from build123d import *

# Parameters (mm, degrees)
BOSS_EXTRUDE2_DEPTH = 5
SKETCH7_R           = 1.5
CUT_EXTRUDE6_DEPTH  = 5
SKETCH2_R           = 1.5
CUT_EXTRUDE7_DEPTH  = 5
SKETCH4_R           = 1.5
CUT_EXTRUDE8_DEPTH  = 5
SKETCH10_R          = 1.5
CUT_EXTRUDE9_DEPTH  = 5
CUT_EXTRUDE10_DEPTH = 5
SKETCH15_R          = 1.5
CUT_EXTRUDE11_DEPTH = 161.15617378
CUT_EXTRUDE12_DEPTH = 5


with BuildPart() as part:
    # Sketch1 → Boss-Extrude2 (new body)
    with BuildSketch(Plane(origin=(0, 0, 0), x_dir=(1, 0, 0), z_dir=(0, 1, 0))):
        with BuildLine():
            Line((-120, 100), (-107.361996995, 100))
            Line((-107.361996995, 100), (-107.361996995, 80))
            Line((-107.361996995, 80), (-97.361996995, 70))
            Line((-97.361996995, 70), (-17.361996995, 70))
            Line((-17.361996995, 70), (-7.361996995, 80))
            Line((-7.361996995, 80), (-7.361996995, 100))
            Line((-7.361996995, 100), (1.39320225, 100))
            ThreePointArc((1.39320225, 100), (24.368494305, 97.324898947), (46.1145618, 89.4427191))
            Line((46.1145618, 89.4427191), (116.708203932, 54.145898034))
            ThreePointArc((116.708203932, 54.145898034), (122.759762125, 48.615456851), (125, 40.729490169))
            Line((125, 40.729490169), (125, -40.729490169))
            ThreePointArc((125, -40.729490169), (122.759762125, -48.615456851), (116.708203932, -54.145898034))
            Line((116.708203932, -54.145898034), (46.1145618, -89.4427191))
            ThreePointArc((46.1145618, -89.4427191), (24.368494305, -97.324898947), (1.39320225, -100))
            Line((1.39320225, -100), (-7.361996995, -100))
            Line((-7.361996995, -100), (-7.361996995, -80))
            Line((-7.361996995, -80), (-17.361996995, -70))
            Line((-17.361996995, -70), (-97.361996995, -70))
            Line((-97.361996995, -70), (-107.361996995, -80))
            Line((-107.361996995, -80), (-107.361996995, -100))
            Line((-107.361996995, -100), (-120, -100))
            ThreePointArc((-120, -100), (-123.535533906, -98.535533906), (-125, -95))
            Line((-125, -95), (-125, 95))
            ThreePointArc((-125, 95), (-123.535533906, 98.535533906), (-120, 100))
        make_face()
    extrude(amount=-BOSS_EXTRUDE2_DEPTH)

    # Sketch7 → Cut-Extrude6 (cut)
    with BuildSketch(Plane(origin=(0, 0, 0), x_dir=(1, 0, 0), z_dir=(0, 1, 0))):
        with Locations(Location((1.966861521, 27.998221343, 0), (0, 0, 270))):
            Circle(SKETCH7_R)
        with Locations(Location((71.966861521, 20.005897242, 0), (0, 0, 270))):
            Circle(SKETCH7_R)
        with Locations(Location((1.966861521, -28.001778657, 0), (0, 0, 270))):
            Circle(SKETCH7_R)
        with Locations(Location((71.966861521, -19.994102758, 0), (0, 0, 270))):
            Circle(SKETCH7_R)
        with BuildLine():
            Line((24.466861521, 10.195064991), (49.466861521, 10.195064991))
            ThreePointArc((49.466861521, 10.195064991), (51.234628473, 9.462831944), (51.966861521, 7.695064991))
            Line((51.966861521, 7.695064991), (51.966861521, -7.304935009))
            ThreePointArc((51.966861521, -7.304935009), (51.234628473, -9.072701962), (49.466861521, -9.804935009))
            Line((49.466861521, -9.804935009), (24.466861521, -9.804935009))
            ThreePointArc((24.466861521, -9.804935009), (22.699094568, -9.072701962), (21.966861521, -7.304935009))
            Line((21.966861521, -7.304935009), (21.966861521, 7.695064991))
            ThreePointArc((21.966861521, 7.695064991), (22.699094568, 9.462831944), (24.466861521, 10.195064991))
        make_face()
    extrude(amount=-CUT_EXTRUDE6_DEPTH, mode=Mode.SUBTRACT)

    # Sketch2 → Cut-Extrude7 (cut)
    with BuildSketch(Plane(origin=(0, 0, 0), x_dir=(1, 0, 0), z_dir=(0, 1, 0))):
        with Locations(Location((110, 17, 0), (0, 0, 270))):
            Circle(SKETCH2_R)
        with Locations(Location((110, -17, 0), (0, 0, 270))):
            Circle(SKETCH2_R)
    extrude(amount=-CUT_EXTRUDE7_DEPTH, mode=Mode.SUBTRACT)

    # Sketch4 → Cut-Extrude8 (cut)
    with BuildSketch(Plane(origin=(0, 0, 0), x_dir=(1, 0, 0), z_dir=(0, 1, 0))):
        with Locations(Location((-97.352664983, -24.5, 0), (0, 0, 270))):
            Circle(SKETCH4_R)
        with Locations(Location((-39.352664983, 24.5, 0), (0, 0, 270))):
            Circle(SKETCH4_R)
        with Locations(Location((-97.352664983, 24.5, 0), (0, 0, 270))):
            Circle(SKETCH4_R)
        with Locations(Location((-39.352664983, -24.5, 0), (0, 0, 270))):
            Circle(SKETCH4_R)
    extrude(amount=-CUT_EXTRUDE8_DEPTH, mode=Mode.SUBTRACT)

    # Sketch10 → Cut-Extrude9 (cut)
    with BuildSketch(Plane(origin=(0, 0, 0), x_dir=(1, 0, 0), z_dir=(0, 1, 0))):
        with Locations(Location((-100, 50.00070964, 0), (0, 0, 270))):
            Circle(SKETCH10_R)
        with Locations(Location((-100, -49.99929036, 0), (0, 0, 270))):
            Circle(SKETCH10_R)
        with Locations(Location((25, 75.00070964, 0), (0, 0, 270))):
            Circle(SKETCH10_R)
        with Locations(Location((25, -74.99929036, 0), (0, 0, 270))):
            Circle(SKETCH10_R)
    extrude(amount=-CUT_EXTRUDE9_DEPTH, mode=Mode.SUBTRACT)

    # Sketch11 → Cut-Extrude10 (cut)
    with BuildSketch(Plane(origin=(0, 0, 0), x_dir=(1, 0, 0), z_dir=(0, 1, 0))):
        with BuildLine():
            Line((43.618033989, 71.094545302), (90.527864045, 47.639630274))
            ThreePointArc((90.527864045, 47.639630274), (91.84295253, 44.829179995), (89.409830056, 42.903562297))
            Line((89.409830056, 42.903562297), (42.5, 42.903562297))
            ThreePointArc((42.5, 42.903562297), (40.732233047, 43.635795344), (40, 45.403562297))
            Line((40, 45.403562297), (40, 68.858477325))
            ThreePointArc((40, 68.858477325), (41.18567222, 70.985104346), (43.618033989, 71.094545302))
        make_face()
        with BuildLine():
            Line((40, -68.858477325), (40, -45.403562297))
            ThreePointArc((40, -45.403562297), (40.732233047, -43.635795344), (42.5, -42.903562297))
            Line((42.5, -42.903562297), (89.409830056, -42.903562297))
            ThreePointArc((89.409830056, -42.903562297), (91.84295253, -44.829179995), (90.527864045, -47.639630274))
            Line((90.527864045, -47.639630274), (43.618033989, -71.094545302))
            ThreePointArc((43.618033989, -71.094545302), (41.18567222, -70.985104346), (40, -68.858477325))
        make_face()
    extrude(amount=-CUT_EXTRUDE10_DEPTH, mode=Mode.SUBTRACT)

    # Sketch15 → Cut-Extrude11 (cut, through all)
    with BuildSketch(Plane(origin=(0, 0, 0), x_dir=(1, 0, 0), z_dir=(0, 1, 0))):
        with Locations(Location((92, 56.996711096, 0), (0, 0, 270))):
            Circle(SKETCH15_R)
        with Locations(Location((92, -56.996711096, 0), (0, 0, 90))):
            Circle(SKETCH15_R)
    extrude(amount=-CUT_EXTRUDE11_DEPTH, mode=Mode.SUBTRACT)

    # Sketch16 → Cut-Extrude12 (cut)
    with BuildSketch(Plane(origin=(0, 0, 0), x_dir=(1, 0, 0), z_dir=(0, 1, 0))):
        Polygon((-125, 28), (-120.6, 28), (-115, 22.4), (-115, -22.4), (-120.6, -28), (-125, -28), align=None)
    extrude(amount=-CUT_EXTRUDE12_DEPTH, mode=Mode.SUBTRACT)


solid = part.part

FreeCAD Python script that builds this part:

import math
import FreeCAD as App
import Part
import Sketcher
Q = App.Units.Quantity

doc = App.newDocument("Part")
params = doc.addObject("Spreadsheet::Sheet", "Params")
for row, (alias, value) in enumerate([
    ("sketch1_radius", "5 mm"),
    ("sketch1_radius2", "100 mm"),
    ("sketch1_radius3", "15 mm"),
    ("sketch1_width", "80 mm"),
    ("sketch1_height", "20 mm"),
    ("pad1_length", "5 mm"),
    ("sketch2_diameter", "3 mm"),
    ("sketch2_radius", "2.5 mm"),
    ("sketch2_width", "25 mm"),
    ("sketch2_height", "15 mm"),
    ("pocket1_length", "5 mm"),
    ("sketch3_diameter", "3 mm"),
    ("pocket2_length", "5 mm"),
    ("sketch4_diameter", "3 mm"),
    ("pocket3_length", "5 mm"),
    ("sketch5_diameter", "3 mm"),
    ("pocket4_length", "5 mm"),
    ("sketch6_radius", "2.5 mm"),
    ("pocket5_length", "5 mm"),
    ("sketch7_diameter", "3 mm"),
    ("sketch8_height", "56 mm"),
    ("sketch8_width", "4.4 mm"),
    ("sketch8_height2", "44.8 mm"),
    ("pocket7_length", "5 mm"),
], start=1):
    params.set(f"A{row}", alias)
    params.set(f"B{row}", "=" + value)
    params.setAlias(f"B{row}", alias)

body = doc.addObject("PartDesign::Body", "Body")

sketch1 = body.newObject("Sketcher::SketchObject", "Sketch")
sketch1.AttachmentSupport = (doc.getObject("XZ_Plane"), [""])
sketch1.MapMode = "FlatFace"
sketch1.addGeometry([
    Part.LineSegment(App.Vector(-107.361997, -100, 0), App.Vector(-120, -100, 0)),
    Part.ArcOfCircle(Part.Circle(App.Vector(-120, -95, 0), App.Vector(0, 0, 1), 5), math.radians(180), math.radians(270)),
    Part.LineSegment(App.Vector(-125, -95, 0), App.Vector(-125, 95, 0)),
    Part.ArcOfCircle(Part.Circle(App.Vector(-120, 95, 0), App.Vector(0, 0, 1), 5), math.radians(90), math.radians(180)),
    Part.LineSegment(App.Vector(-120, 100, 0), App.Vector(-107.361997, 100, 0)),
    Part.LineSegment(App.Vector(-107.361997, 100, 0), App.Vector(-107.361997, 80, 0)),
    Part.LineSegment(App.Vector(-107.361997, 80, 0), App.Vector(-97.361997, 70, 0)),
    Part.LineSegment(App.Vector(-97.361997, 70, 0), App.Vector(-17.361997, 70, 0)),
    Part.LineSegment(App.Vector(-17.361997, 70, 0), App.Vector(-7.361997, 80, 0)),
    Part.LineSegment(App.Vector(-7.361997, 80, 0), App.Vector(-7.361997, 100, 0)),
    Part.LineSegment(App.Vector(-7.361997, 100, 0), App.Vector(1.393202, 100, 0)),
    Part.ArcOfCircle(Part.Circle(App.Vector(1.393202, 0, 0), App.Vector(0, 0, 1), 100), math.radians(63.434949), math.radians(90)),
    Part.LineSegment(App.Vector(46.114562, 89.442719, 0), App.Vector(116.708204, 54.145898, 0)),
    Part.ArcOfCircle(Part.Circle(App.Vector(110, 40.72949, 0), App.Vector(0, 0, 1), 15), math.radians(0), math.radians(63.434949)),
    Part.LineSegment(App.Vector(125, 40.72949, 0), App.Vector(125, -40.72949, 0)),
    Part.ArcOfCircle(Part.Circle(App.Vector(110, -40.72949, 0), App.Vector(0, 0, 1), 15), math.radians(-63.434949), math.radians(0)),
    Part.LineSegment(App.Vector(116.708204, -54.145898, 0), App.Vector(46.114562, -89.442719, 0)),
    Part.ArcOfCircle(Part.Circle(App.Vector(1.393202, 0, 0), App.Vector(0, 0, 1), 100), math.radians(-90), math.radians(-63.434949)),
    Part.LineSegment(App.Vector(1.393202, -100, 0), App.Vector(-7.361997, -100, 0)),
    Part.LineSegment(App.Vector(-7.361997, -100, 0), App.Vector(-7.361997, -80, 0)),
    Part.LineSegment(App.Vector(-7.361997, -80, 0), App.Vector(-17.361997, -70, 0)),
    Part.LineSegment(App.Vector(-17.361997, -70, 0), App.Vector(-97.361997, -70, 0)),
    Part.LineSegment(App.Vector(-97.361997, -70, 0), App.Vector(-107.361997, -80, 0)),
    Part.LineSegment(App.Vector(-107.361997, -80, 0), App.Vector(-107.361997, -100, 0)),
], False)
sketch1.addConstraint([
    Sketcher.Constraint("Tangent", 0, 2, 1, 2),
    Sketcher.Constraint("Tangent", 1, 1, 2, 1),
    Sketcher.Constraint("Tangent", 2, 2, 3, 2),
    Sketcher.Constraint("Tangent", 3, 1, 4, 1),
    Sketcher.Constraint("Coincident", 4, 2, 5, 1),
    Sketcher.Constraint("Coincident", 5, 2, 6, 1),
    Sketcher.Constraint("Coincident", 6, 2, 7, 1),
    Sketcher.Constraint("Coincident", 7, 2, 8, 1),
    Sketcher.Constraint("Coincident", 8, 2, 9, 1),
    Sketcher.Constraint("Coincident", 9, 2, 10, 1),
    Sketcher.Constraint("Tangent", 10, 2, 11, 2),
    Sketcher.Constraint("Tangent", 11, 1, 12, 1),
    Sketcher.Constraint("Tangent", 12, 2, 13, 2),
    Sketcher.Constraint("Tangent", 13, 1, 14, 1),
    Sketcher.Constraint("Tangent", 14, 2, 15, 2),
    Sketcher.Constraint("Tangent", 15, 1, 16, 1),
    Sketcher.Constraint("Tangent", 16, 2, 17, 2),
    Sketcher.Constraint("Tangent", 17, 1, 18, 1),
    Sketcher.Constraint("Coincident", 18, 2, 19, 1),
    Sketcher.Constraint("Coincident", 19, 2, 20, 1),
    Sketcher.Constraint("Coincident", 20, 2, 21, 1),
    Sketcher.Constraint("Coincident", 21, 2, 22, 1),
    Sketcher.Constraint("Coincident", 22, 2, 23, 1),
    Sketcher.Constraint("Coincident", 23, 2, 0, 1),
    Sketcher.Constraint("Horizontal", 0),
    Sketcher.Constraint("Vertical", 2),
    Sketcher.Constraint("Horizontal", 4),
    Sketcher.Constraint("Vertical", 5),
    Sketcher.Constraint("Horizontal", 7),
    Sketcher.Constraint("Vertical", 9),
    Sketcher.Constraint("Horizontal", 10),
    Sketcher.Constraint("Vertical", 14),
    Sketcher.Constraint("Horizontal", 18),
    Sketcher.Constraint("Vertical", 19),
    Sketcher.Constraint("Horizontal", 21),
    Sketcher.Constraint("Vertical", 23),
    Sketcher.Constraint("Coincident", 17, 3, 11, 3),
    Sketcher.Constraint("Equal", 1, 3),
    Sketcher.Constraint("Equal", 13, 15),
    Sketcher.Constraint("Equal", 11, 17),
    Sketcher.Constraint("Symmetric", 12, 2, 15, 1, -1),
    Sketcher.Constraint("Symmetric", 8, 2, 19, 2, -1),
    Sketcher.Constraint("Symmetric", 7, 2, 20, 2, -1),
    Sketcher.Constraint("Symmetric", 5, 2, 22, 2, -1),
    Sketcher.Constraint("Perpendicular", 6, 8),
    Sketcher.Constraint("Perpendicular", 8, 20),
    Sketcher.Constraint("Perpendicular", 20, 22),
    Sketcher.Constraint("Horizontal", 5, 2, 8, 2),
    Sketcher.Constraint("Horizontal", 4, 2, 9, 2),
    Sketcher.Constraint("Horizontal", 0, 2, 17, 1),
    Sketcher.Constraint("Radius", 1, Q("5 mm")),
    Sketcher.Constraint("Radius", 11, Q("100 mm")),
    Sketcher.Constraint("Radius", 13, Q("15 mm")),
    Sketcher.Constraint("DistanceX", 7, 1, 7, 2, Q("80 mm")),
    Sketcher.Constraint("DistanceY", 5, 2, 5, 1, Q("20 mm")),
    Sketcher.Constraint("DistanceX", 1, 3, -1, 1, Q("120 mm")),
    Sketcher.Constraint("DistanceX", -1, 1, 13, 3, Q("110 mm")),
    Sketcher.Constraint("DistanceY", -1, 1, 6, 2, Q("70 mm")),
    Sketcher.Constraint("DistanceX", 10, 1, 10, 2, Q("8.755199 mm")),
    Sketcher.Constraint("DistanceX", 10, 2, 12, 2, Q("115.315002 mm")),
    Sketcher.Constraint("DistanceY", 14, 2, 14, 1, Q("81.45898 mm")),
])
sketch1.setExpression("Constraints[50]", "Params.sketch1_radius")
sketch1.setExpression("Constraints[51]", "Params.sketch1_radius2")
sketch1.setExpression("Constraints[52]", "Params.sketch1_radius3")
sketch1.setExpression("Constraints[53]", "Params.sketch1_width")
sketch1.setExpression("Constraints[54]", "Params.sketch1_height")
pad1 = body.newObject("PartDesign::Pad", "Pad")
pad1.Profile = sketch1
pad1.setExpression("Length", "Params.pad1_length")

sketch2 = body.newObject("Sketcher::SketchObject", "Sketch001")
sketch2.AttachmentSupport = (doc.getObject("XZ_Plane"), [""])
sketch2.MapMode = "FlatFace"
sketch2.addGeometry([
    Part.Circle(App.Vector(1.966862, -27.998221, 0), App.Vector(0, 0, 1), 1.5),
    Part.Circle(App.Vector(71.966862, -20.005897, 0), App.Vector(0, 0, 1), 1.5),
    Part.Circle(App.Vector(1.966862, 28.001779, 0), App.Vector(0, 0, 1), 1.5),
    Part.Circle(App.Vector(71.966862, 19.994103, 0), App.Vector(0, 0, 1), 1.5),
    Part.LineSegment(App.Vector(49.466862, -10.195065, 0), App.Vector(24.466862, -10.195065, 0)),
    Part.ArcOfCircle(Part.Circle(App.Vector(24.466862, -7.695065, 0), App.Vector(0, 0, 1), 2.5), math.radians(180), math.radians(270)),
    Part.LineSegment(App.Vector(21.966862, -7.695065, 0), App.Vector(21.966862, 7.304935, 0)),
    Part.ArcOfCircle(Part.Circle(App.Vector(24.466862, 7.304935, 0), App.Vector(0, 0, 1), 2.5), math.radians(90), math.radians(180)),
    Part.LineSegment(App.Vector(24.466862, 9.804935, 0), App.Vector(49.466862, 9.804935, 0)),
    Part.ArcOfCircle(Part.Circle(App.Vector(49.466862, 7.304935, 0), App.Vector(0, 0, 1), 2.5), math.radians(0), math.radians(90)),
    Part.LineSegment(App.Vector(51.966862, 7.304935, 0), App.Vector(51.966862, -7.695065, 0)),
    Part.ArcOfCircle(Part.Circle(App.Vector(49.466862, -7.695065, 0), App.Vector(0, 0, 1), 2.5), math.radians(-90), math.radians(0)),
], False)
sketch2.addConstraint([
    Sketcher.Constraint("Tangent", 4, 2, 5, 2),
    Sketcher.Constraint("Tangent", 5, 1, 6, 1),
    Sketcher.Constraint("Tangent", 6, 2, 7, 2),
    Sketcher.Constraint("Tangent", 7, 1, 8, 1),
    Sketcher.Constraint("Tangent", 8, 2, 9, 2),
    Sketcher.Constraint("Tangent", 9, 1, 10, 1),
    Sketcher.Constraint("Tangent", 10, 2, 11, 2),
    Sketcher.Constraint("Tangent", 11, 1, 4, 1),
    Sketcher.Constraint("Horizontal", 4),
    Sketcher.Constraint("Vertical", 6),
    Sketcher.Constraint("Horizontal", 8),
    Sketcher.Constraint("Vertical", 10),
    Sketcher.Constraint("Equal", 0, 1),
    Sketcher.Constraint("Equal", 1, 2),
    Sketcher.Constraint("Equal", 2, 3),
    Sketcher.Constraint("Equal", 5, 7),
    Sketcher.Constraint("Equal", 7, 9),
    Sketcher.Constraint("Equal", 9, 11),
    Sketcher.Constraint("Vertical", 0, 3, 2, 3),
    Sketcher.Constraint("Vertical", 1, 3, 3, 3),
    Sketcher.Constraint("Diameter", 0, Q("3 mm")),
    Sketcher.Constraint("Radius", 5, Q("2.5 mm")),
    Sketcher.Constraint("DistanceX", 4, 2, 4, 1, Q("25 mm")),
    Sketcher.Constraint("DistanceY", 6, 1, 6, 2, Q("15 mm")),
    Sketcher.Constraint("DistanceX", 0, 3, 1, 3, Q("70 mm")),
    Sketcher.Constraint("DistanceY", 0, 3, 2, 3, Q("56 mm")),
    Sketcher.Constraint("DistanceY", 1, 3, 3, 3, Q("40 mm")),
    Sketcher.Constraint("DistanceX", 0, 3, 5, 1, Q("20 mm")),
    Sketcher.Constraint("DistanceX", -1, 1, 0, 3, Q("1.966862 mm")),
    Sketcher.Constraint("DistanceY", 0, 3, -1, 1, Q("27.998221 mm")),
    Sketcher.Constraint("DistanceY", 1, 3, -1, 1, Q("20.005897 mm")),
    Sketcher.Constraint("DistanceY", 5, 3, -1, 1, Q("7.695065 mm")),
])
sketch2.setExpression("Constraints[20]", "Params.sketch2_diameter")
sketch2.setExpression("Constraints[21]", "Params.sketch2_radius")
sketch2.setExpression("Constraints[22]", "Params.sketch2_width")
sketch2.setExpression("Constraints[23]", "Params.sketch2_height")
pocket1 = body.newObject("PartDesign::Pocket", "Pocket")
pocket1.Profile = sketch2
pocket1.setExpression("Length", "Params.pocket1_length")
pocket1.Reversed = True

sketch3 = body.newObject("Sketcher::SketchObject", "Sketch002")
sketch3.AttachmentSupport = (doc.getObject("XZ_Plane"), [""])
sketch3.MapMode = "FlatFace"
sketch3.addGeometry([
    Part.Circle(App.Vector(110, -17, 0), App.Vector(0, 0, 1), 1.5),
    Part.Circle(App.Vector(110, 17, 0), App.Vector(0, 0, 1), 1.5),
], False)
sketch3.addConstraint([
    Sketcher.Constraint("Equal", 0, 1),
    Sketcher.Constraint("Symmetric", 0, 3, 1, 3, -1),
    Sketcher.Constraint("Diameter", 0, Q("3 mm")),
    Sketcher.Constraint("DistanceX", -1, 1, 0, 3, Q("110 mm")),
    Sketcher.Constraint("DistanceY", 0, 3, -1, 1, Q("17 mm")),
])
sketch3.setExpression("Constraints[2]", "Params.sketch3_diameter")
pocket2 = body.newObject("PartDesign::Pocket", "Pocket001")
pocket2.Profile = sketch3
pocket2.setExpression("Length", "Params.pocket2_length")
pocket2.Reversed = True

sketch4 = body.newObject("Sketcher::SketchObject", "Sketch003")
sketch4.AttachmentSupport = (doc.getObject("XZ_Plane"), [""])
sketch4.MapMode = "FlatFace"
sketch4.addGeometry([
    Part.Circle(App.Vector(-97.352665, 24.5, 0), App.Vector(0, 0, 1), 1.5),
    Part.Circle(App.Vector(-39.352665, -24.5, 0), App.Vector(0, 0, 1), 1.5),
    Part.Circle(App.Vector(-97.352665, -24.5, 0), App.Vector(0, 0, 1), 1.5),
    Part.Circle(App.Vector(-39.352665, 24.5, 0), App.Vector(0, 0, 1), 1.5),
], False)
sketch4.addConstraint([
    Sketcher.Constraint("Equal", 0, 1),
    Sketcher.Constraint("Equal", 1, 2),
    Sketcher.Constraint("Equal", 2, 3),
    Sketcher.Constraint("Symmetric", 0, 3, 2, 3, -1),
    Sketcher.Constraint("Symmetric", 1, 3, 3, 3, -1),
    Sketcher.Constraint("Horizontal", 1, 3, 2, 3),
    Sketcher.Constraint("Diameter", 0, Q("3 mm")),
    Sketcher.Constraint("DistanceX", 0, 3, 1, 3, Q("58 mm")),
    Sketcher.Constraint("DistanceY", 1, 3, 0, 3, Q("49 mm")),
    Sketcher.Constraint("DistanceX", 0, 3, -1, 1, Q("97.352665 mm")),
])
sketch4.setExpression("Constraints[6]", "Params.sketch4_diameter")
pocket3 = body.newObject("PartDesign::Pocket", "Pocket002")
pocket3.Profile = sketch4
pocket3.setExpression("Length", "Params.pocket3_length")
pocket3.Reversed = True

sketch5 = body.newObject("Sketcher::SketchObject", "Sketch004")
sketch5.AttachmentSupport = (doc.getObject("XZ_Plane"), [""])
sketch5.MapMode = "FlatFace"
sketch5.addGeometry([
    Part.Circle(App.Vector(-100, -50.00071, 0), App.Vector(0, 0, 1), 1.5),
    Part.Circle(App.Vector(-100, 49.99929, 0), App.Vector(0, 0, 1), 1.5),
    Part.Circle(App.Vector(25, -75.00071, 0), App.Vector(0, 0, 1), 1.5),
    Part.Circle(App.Vector(25, 74.99929, 0), App.Vector(0, 0, 1), 1.5),
], False)
sketch5.addConstraint([
    Sketcher.Constraint("Equal", 0, 1),
    Sketcher.Constraint("Equal", 1, 2),
    Sketcher.Constraint("Equal", 2, 3),
    Sketcher.Constraint("Vertical", 0, 3, 1, 3),
    Sketcher.Constraint("Vertical", 2, 3, 3, 3),
    Sketcher.Constraint("Diameter", 0, Q("3 mm")),
    Sketcher.Constraint("DistanceX", 0, 3, -1, 1, Q("100 mm")),
    Sketcher.Constraint("DistanceX", -1, 1, 2, 3, Q("25 mm")),
    Sketcher.Constraint("DistanceY", 0, 3, 1, 3, Q("100 mm")),
    Sketcher.Constraint("DistanceY", 2, 3, 0, 3, Q("25 mm")),
    Sketcher.Constraint("DistanceY", 1, 3, 3, 3, Q("25 mm")),
    Sketcher.Constraint("DistanceY", 0, 3, -1, 1, Q("50.00071 mm")),
])
sketch5.setExpression("Constraints[5]", "Params.sketch5_diameter")
pocket4 = body.newObject("PartDesign::Pocket", "Pocket003")
pocket4.Profile = sketch5
pocket4.setExpression("Length", "Params.pocket4_length")
pocket4.Reversed = True

sketch6 = body.newObject("Sketcher::SketchObject", "Sketch005")
sketch6.AttachmentSupport = (doc.getObject("XZ_Plane"), [""])
sketch6.MapMode = "FlatFace"
sketch6.addGeometry([
    Part.LineSegment(App.Vector(90.527864, -47.63963, 0), App.Vector(43.618034, -71.094545, 0)),
    Part.ArcOfCircle(Part.Circle(App.Vector(42.5, -68.858477, 0), App.Vector(0, 0, 1), 2.5), math.radians(180), math.radians(296.565051)),
    Part.LineSegment(App.Vector(40, -68.858477, 0), App.Vector(40, -45.403562, 0)),
    Part.ArcOfCircle(Part.Circle(App.Vector(42.5, -45.403562, 0), App.Vector(0, 0, 1), 2.5), math.radians(90), math.radians(180)),
    Part.LineSegment(App.Vector(42.5, -42.903562, 0), App.Vector(89.40983, -42.903562, 0)),
    Part.ArcOfCircle(Part.Circle(App.Vector(89.40983, -45.403562, 0), App.Vector(0, 0, 1), 2.5), math.radians(-63.434949), math.radians(90)),
    Part.LineSegment(App.Vector(40, 45.403562, 0), App.Vector(40, 68.858477, 0)),
    Part.ArcOfCircle(Part.Circle(App.Vector(42.5, 68.858477, 0), App.Vector(0, 0, 1), 2.5), math.radians(63.434949), math.radians(180)),
    Part.LineSegment(App.Vector(43.618034, 71.094545, 0), App.Vector(90.527864, 47.63963, 0)),
    Part.ArcOfCircle(Part.Circle(App.Vector(89.40983, 45.403562, 0), App.Vector(0, 0, 1), 2.5), math.radians(-90), math.radians(63.434949)),
    Part.LineSegment(App.Vector(89.40983, 42.903562, 0), App.Vector(42.5, 42.903562, 0)),
    Part.ArcOfCircle(Part.Circle(App.Vector(42.5, 45.403562, 0), App.Vector(0, 0, 1), 2.5), math.radians(180), math.radians(270)),
], False)
sketch6.addConstraint([
    Sketcher.Constraint("Tangent", 0, 2, 1, 2),
    Sketcher.Constraint("Tangent", 1, 1, 2, 1),
    Sketcher.Constraint("Tangent", 2, 2, 3, 2),
    Sketcher.Constraint("Tangent", 3, 1, 4, 1),
    Sketcher.Constraint("Tangent", 4, 2, 5, 2),
    Sketcher.Constraint("Tangent", 5, 1, 0, 1),
    Sketcher.Constraint("Tangent", 6, 2, 7, 2),
    Sketcher.Constraint("Tangent", 7, 1, 8, 1),
    Sketcher.Constraint("Tangent", 8, 2, 9, 2),
    Sketcher.Constraint("Tangent", 9, 1, 10, 1),
    Sketcher.Constraint("Tangent", 10, 2, 11, 2),
    Sketcher.Constraint("Tangent", 11, 1, 6, 1),
    Sketcher.Constraint("Vertical", 2),
    Sketcher.Constraint("Horizontal", 4),
    Sketcher.Constraint("Vertical", 6),
    Sketcher.Constraint("Horizontal", 10),
    Sketcher.Constraint("Equal", 1, 3),
    Sketcher.Constraint("Equal", 3, 5),
    Sketcher.Constraint("Equal", 5, 7),
    Sketcher.Constraint("Equal", 7, 9),
    Sketcher.Constraint("Equal", 9, 11),
    Sketcher.Constraint("Symmetric", 1, 3, 7, 3, -1),
    Sketcher.Constraint("Symmetric", 5, 3, 9, 3, -1),
    Sketcher.Constraint("Radius", 1, Q("2.5 mm")),
    Sketcher.Constraint("DistanceX", -1, 1, 1, 1, Q("40 mm")),
    Sketcher.Constraint("DistanceX", 4, 1, 4, 2, Q("46.90983 mm")),
    Sketcher.Constraint("DistanceY", 2, 1, 2, 2, Q("23.454915 mm")),
    Sketcher.Constraint("DistanceY", 5, 1, -1, 1, Q("47.63963 mm")),
])
sketch6.setExpression("Constraints[23]", "Params.sketch6_radius")
pocket5 = body.newObject("PartDesign::Pocket", "Pocket004")
pocket5.Profile = sketch6
pocket5.setExpression("Length", "Params.pocket5_length")
pocket5.Reversed = True

sketch7 = body.newObject("Sketcher::SketchObject", "Sketch006")
sketch7.AttachmentSupport = (doc.getObject("XZ_Plane"), [""])
sketch7.MapMode = "FlatFace"
sketch7.addGeometry([
    Part.Circle(App.Vector(92, -56.996711, 0), App.Vector(0, 0, 1), 1.5),
    Part.Circle(App.Vector(92, 56.996711, 0), App.Vector(0, 0, 1), 1.5),
], False)
sketch7.addConstraint([
    Sketcher.Constraint("Equal", 0, 1),
    Sketcher.Constraint("Symmetric", 0, 3, 1, 3, -1),
    Sketcher.Constraint("Diameter", 0, Q("3 mm")),
    Sketcher.Constraint("DistanceX", -1, 1, 0, 3, Q("92 mm")),
    Sketcher.Constraint("DistanceY", 0, 3, -1, 1, Q("56.996711 mm")),
])
sketch7.setExpression("Constraints[2]", "Params.sketch7_diameter")
pocket6 = body.newObject("PartDesign::Pocket", "Pocket005")
pocket6.Profile = sketch7
pocket6.Type = "ThroughAll"
pocket6.Reversed = True

sketch8 = body.newObject("Sketcher::SketchObject", "Sketch007")
sketch8.AttachmentSupport = (doc.getObject("XZ_Plane"), [""])
sketch8.MapMode = "FlatFace"
sketch8.addGeometry([
    Part.LineSegment(App.Vector(-120.6, -28, 0), App.Vector(-125, -28, 0)),
    Part.LineSegment(App.Vector(-125, -28, 0), App.Vector(-125, 28, 0)),
    Part.LineSegment(App.Vector(-125, 28, 0), App.Vector(-120.6, 28, 0)),
    Part.LineSegment(App.Vector(-120.6, 28, 0), App.Vector(-115, 22.4, 0)),
    Part.LineSegment(App.Vector(-115, 22.4, 0), App.Vector(-115, -22.4, 0)),
    Part.LineSegment(App.Vector(-115, -22.4, 0), App.Vector(-120.6, -28, 0)),
], False)
sketch8.addConstraint([
    Sketcher.Constraint("Coincident", 0, 2, 1, 1),
    Sketcher.Constraint("Coincident", 1, 2, 2, 1),
    Sketcher.Constraint("Coincident", 2, 2, 3, 1),
    Sketcher.Constraint("Coincident", 3, 2, 4, 1),
    Sketcher.Constraint("Coincident", 4, 2, 5, 1),
    Sketcher.Constraint("Coincident", 5, 2, 0, 1),
    Sketcher.Constraint("Horizontal", 0),
    Sketcher.Constraint("Vertical", 1),
    Sketcher.Constraint("Horizontal", 2),
    Sketcher.Constraint("Vertical", 4),
    Sketcher.Constraint("Symmetric", 2, 2, 5, 2, -1),
    Sketcher.Constraint("Perpendicular", 3, 5),
    Sketcher.Constraint("Equal", 3, 5),
    Sketcher.Constraint("DistanceY", 1, 1, 1, 2, Q("56 mm")),
    Sketcher.Constraint("DistanceX", 0, 2, 0, 1, Q("4.4 mm")),
    Sketcher.Constraint("DistanceY", 4, 2, 4, 1, Q("44.8 mm")),
    Sketcher.Constraint("DistanceX", 0, 2, -1, 1, Q("125 mm")),
])
sketch8.setExpression("Constraints[13]", "Params.sketch8_height")
sketch8.setExpression("Constraints[14]", "Params.sketch8_width")
sketch8.setExpression("Constraints[15]", "Params.sketch8_height2")
pocket7 = body.newObject("PartDesign::Pocket", "Pocket006")
pocket7.Profile = sketch8
pocket7.setExpression("Length", "Params.pocket7_length")
pocket7.Reversed = True

doc.recompute()
